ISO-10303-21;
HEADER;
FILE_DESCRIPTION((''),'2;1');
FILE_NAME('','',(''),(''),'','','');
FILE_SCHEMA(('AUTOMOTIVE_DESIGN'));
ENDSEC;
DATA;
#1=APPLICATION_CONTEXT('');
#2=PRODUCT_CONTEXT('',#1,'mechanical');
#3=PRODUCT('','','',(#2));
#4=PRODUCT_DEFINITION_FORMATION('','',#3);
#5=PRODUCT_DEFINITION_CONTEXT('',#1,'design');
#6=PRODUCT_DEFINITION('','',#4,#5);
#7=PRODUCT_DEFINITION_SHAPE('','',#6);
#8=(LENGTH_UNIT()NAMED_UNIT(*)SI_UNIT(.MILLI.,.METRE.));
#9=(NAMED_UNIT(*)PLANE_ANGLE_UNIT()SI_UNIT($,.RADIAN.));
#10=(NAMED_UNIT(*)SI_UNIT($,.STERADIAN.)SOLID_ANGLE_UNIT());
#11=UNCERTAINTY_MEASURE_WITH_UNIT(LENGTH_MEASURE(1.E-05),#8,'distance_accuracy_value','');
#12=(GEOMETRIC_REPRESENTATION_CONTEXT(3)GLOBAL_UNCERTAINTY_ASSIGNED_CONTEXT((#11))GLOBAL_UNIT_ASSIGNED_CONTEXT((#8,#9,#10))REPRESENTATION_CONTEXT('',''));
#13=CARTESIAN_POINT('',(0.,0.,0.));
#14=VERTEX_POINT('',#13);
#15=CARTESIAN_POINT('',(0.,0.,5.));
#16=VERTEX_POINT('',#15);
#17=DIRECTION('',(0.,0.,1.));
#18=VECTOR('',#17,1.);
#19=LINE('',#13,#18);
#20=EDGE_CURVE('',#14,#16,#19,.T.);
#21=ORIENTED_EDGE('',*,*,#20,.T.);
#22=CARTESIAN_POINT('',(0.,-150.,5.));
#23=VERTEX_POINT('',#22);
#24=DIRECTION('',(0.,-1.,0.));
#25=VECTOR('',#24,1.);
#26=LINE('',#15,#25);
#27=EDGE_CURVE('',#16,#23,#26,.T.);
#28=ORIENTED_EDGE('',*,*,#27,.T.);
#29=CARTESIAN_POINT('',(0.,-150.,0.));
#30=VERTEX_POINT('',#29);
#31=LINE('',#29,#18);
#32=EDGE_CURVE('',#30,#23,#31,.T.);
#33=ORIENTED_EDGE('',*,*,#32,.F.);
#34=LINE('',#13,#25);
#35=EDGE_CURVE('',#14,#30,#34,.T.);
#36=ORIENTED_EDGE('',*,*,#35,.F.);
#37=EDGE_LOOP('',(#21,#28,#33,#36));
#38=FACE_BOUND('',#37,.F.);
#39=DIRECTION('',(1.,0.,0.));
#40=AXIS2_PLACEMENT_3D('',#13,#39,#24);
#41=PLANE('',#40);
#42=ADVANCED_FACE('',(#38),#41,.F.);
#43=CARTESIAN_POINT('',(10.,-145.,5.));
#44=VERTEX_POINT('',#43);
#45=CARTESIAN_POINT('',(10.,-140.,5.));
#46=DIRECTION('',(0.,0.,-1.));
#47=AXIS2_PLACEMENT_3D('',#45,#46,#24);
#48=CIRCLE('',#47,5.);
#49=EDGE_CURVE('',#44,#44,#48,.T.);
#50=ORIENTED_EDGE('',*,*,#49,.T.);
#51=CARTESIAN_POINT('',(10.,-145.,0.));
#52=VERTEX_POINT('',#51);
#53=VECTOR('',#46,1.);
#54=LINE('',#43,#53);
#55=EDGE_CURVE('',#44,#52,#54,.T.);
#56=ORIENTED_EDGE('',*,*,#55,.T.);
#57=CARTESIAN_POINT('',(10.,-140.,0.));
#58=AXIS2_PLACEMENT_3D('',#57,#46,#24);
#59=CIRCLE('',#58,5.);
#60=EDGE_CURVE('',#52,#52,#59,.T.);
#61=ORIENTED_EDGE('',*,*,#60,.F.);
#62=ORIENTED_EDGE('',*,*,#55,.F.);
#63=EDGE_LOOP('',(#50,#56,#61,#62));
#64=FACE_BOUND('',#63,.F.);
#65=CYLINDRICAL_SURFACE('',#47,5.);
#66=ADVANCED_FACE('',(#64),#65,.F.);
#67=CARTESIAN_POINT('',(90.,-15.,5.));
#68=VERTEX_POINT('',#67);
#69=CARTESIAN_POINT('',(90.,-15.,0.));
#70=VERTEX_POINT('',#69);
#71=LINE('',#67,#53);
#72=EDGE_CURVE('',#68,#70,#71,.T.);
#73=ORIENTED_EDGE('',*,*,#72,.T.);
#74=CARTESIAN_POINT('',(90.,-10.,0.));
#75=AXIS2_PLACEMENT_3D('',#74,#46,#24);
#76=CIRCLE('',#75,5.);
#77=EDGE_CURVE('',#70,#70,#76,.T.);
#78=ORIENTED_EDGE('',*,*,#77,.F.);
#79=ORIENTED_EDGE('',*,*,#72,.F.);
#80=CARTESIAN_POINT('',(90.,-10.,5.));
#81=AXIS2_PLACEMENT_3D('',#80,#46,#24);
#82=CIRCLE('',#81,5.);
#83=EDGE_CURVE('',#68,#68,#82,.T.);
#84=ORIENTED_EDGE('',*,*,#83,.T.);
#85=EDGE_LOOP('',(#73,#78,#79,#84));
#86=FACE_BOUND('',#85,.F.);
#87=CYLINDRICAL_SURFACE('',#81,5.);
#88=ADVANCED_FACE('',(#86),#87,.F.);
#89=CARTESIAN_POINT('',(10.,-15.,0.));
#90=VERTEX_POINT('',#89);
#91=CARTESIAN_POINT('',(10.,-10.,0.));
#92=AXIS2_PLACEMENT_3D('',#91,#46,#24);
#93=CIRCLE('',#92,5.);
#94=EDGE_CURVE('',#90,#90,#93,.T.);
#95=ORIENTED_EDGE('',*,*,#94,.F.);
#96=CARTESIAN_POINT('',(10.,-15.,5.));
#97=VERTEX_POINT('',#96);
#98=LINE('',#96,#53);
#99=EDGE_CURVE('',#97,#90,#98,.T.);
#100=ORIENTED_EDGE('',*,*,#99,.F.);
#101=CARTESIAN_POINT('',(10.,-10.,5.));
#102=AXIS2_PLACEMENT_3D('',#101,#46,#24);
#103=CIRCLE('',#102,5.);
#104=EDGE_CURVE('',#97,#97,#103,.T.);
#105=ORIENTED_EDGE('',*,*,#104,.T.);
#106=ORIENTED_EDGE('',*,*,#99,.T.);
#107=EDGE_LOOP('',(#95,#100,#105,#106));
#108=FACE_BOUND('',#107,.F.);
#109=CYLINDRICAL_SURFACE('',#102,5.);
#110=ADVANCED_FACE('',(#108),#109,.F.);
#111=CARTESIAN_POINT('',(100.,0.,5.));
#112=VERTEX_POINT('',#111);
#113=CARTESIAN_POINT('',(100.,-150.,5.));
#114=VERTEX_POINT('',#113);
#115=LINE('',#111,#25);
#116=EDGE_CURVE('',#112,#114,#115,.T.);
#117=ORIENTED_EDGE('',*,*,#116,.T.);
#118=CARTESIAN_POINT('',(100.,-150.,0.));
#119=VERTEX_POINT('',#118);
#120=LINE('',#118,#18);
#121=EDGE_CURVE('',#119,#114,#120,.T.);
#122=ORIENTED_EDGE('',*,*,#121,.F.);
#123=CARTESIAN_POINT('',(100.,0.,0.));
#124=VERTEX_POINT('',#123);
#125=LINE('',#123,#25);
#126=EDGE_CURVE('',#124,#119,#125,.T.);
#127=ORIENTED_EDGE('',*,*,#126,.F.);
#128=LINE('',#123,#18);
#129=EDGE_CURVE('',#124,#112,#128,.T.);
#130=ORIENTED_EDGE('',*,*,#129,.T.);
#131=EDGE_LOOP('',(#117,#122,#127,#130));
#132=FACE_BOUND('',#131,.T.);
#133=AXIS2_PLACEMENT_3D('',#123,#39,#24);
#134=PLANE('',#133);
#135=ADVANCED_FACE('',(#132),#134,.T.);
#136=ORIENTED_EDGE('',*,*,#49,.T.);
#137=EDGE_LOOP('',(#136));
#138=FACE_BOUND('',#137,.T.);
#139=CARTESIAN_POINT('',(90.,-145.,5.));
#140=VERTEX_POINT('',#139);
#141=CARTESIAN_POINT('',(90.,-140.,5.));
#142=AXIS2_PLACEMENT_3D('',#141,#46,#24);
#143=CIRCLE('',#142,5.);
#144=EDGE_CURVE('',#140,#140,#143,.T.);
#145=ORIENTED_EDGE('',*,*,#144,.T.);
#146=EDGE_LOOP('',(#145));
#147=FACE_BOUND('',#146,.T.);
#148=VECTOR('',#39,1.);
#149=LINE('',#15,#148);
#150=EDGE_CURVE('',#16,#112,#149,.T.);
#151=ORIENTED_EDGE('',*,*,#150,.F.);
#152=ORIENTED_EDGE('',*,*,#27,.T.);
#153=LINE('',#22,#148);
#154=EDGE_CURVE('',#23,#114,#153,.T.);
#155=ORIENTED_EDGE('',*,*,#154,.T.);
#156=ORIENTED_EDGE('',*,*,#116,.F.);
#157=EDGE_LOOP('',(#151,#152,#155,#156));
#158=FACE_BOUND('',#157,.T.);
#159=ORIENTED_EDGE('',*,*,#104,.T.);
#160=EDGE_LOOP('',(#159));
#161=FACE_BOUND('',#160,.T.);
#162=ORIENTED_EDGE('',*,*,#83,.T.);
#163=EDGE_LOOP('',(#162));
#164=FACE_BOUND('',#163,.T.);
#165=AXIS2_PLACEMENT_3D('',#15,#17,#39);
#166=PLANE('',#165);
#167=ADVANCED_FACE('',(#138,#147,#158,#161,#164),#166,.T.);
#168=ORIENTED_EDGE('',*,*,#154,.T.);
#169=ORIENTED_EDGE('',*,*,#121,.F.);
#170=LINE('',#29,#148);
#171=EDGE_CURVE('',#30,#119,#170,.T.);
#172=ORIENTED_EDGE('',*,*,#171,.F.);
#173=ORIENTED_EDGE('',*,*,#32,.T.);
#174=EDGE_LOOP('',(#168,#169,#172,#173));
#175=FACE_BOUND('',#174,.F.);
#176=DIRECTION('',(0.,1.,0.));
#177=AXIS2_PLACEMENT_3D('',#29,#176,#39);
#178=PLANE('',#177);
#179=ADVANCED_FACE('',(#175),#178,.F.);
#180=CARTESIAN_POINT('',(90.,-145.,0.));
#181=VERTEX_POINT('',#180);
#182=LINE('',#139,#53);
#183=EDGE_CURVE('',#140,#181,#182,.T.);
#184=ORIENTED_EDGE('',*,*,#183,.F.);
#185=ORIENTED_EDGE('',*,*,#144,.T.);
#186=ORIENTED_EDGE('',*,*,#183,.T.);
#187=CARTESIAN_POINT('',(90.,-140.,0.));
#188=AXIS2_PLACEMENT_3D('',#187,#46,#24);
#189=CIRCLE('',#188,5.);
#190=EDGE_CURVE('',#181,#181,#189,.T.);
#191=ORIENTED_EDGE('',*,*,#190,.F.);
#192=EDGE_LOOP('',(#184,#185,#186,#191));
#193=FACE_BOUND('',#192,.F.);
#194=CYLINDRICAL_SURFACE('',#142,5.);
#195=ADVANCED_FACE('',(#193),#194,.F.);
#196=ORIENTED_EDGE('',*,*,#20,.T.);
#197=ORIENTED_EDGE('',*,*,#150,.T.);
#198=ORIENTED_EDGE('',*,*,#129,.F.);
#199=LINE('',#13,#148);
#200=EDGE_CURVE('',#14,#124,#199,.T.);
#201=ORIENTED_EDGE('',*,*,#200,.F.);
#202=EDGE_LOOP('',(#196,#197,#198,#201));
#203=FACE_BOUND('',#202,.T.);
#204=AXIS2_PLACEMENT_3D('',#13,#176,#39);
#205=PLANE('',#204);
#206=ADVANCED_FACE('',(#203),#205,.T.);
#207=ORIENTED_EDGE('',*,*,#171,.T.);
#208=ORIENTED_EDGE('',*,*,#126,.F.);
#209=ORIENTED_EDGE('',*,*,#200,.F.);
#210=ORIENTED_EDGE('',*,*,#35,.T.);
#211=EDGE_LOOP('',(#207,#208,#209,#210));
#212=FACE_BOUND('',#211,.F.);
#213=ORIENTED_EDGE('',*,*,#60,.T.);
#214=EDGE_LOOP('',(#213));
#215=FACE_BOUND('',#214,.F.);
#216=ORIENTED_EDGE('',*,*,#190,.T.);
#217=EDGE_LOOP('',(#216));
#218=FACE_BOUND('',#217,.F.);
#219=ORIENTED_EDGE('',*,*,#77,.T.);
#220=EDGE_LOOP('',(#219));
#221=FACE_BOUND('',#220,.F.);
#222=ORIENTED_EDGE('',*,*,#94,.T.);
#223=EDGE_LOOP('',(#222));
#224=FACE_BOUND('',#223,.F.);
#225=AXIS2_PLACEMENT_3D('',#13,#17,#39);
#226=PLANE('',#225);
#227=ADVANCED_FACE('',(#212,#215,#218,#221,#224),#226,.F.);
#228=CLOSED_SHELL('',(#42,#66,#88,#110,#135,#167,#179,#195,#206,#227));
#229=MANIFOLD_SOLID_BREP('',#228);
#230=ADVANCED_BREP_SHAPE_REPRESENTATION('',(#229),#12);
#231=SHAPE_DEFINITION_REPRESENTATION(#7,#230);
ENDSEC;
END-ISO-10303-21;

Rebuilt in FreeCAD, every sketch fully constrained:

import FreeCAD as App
import Part
import Sketcher
from FreeCAD import Vector
Q = App.Units.Quantity


def add_polygon(sketch, points):
    """Adds a closed chain of lines whose ends are joined by coincident constraints."""
    first, n = sketch.GeometryCount, len(points)
    for a, b in zip(points, points[1:] + points[:1]):
        sketch.addGeometry(Part.LineSegment(App.Vector(*a, 0), App.Vector(*b, 0)), False)
    for i in range(n):
        sketch.addConstraint(Sketcher.Constraint("Coincident", first + i, 2, first + (i + 1) % n, 1))

doc = App.newDocument("Part")
params = doc.addObject("Spreadsheet::Sheet", "Params")
for row, (alias, value) in enumerate([
    ("sketch1_width", "100 mm"),
    ("sketch1_height", "150 mm"),
    ("pad1_length", "5 mm"),
    ("sketch2_diameter", "10 mm"),
    ("hole_diameter", "10 mm"),
    ("hole_depth", "5 mm"),
    ("sketch3_diameter", "10 mm"),
    ("hole2_diameter", "10 mm"),
    ("hole2_depth", "5 mm"),
    ("sketch4_diameter", "10 mm"),
    ("hole3_diameter", "10 mm"),
    ("hole3_depth", "5 mm"),
    ("sketch5_diameter", "10 mm"),
    ("hole4_diameter", "10 mm"),
    ("hole4_depth", "5 mm"),
], start=1):
    params.set(f"A{row}", alias)
    params.set(f"B{row}", "=" + value)
    params.setAlias(f"B{row}", alias)

body = doc.addObject("PartDesign::Body", "Body")

# Sketch on XY plane
sketch1 = doc.addObject("Sketcher::SketchObject", "Sketch")
body.addObject(sketch1)
sketch1.AttachmentSupport = (doc.XY_Plane, [""])
sketch1.MapMode = "FlatFace"
add_polygon(sketch1, [(100, 0), (0, 0), (0, -150), (100, -150)])  # lines 0-3
sketch1.addConstraint(Sketcher.Constraint("Horizontal", 0))
sketch1.addConstraint(Sketcher.Constraint("Vertical", 1))
sketch1.addConstraint(Sketcher.Constraint("Horizontal", 2))
sketch1.addConstraint(Sketcher.Constraint("Vertical", 3))
sketch1.addConstraint(Sketcher.Constraint("Coincident", 0, 2, -1, 1))
sketch1.addConstraint(Sketcher.Constraint("DistanceX", 0, 2, 0, 1, Q("100 mm")))
sketch1.addConstraint(Sketcher.Constraint("DistanceY", 1, 2, 1, 1, Q("150 mm")))
sketch1.setExpression("Constraints[9]", "Params.sketch1_width")
sketch1.setExpression("Constraints[10]", "Params.sketch1_height")
pad1 = doc.addObject("PartDesign::Pad", "Pad")
body.addObject(pad1)
pad1.Profile = sketch1
pad1.setExpression("Length", "Params.pad1_length")

# Sketch on XY plane
sketch2 = doc.addObject("Sketcher::SketchObject", "Sketch001")
body.addObject(sketch2)
sketch2.AttachmentSupport = (doc.XY_Plane, [""])
sketch2.MapMode = "FlatFace"
sketch2.AttachmentOffset = App.Placement(Vector(0, 0, 5), App.Rotation())
sketch2.addGeometry(Part.Circle(Vector(10, -10, 0), Vector(0, 0, 1), 5), False)
sketch2.addConstraint(Sketcher.Constraint("Diameter", 0, Q("10 mm")))
sketch2.addConstraint(Sketcher.Constraint("DistanceX", -1, 1, 0, 3, Q("10 mm")))
sketch2.addConstraint(Sketcher.Constraint("DistanceY", 0, 3, -1, 1, Q("10 mm")))
sketch2.setExpression("Constraints[0]", "Params.sketch2_diameter")
doc.recompute()
hole = doc.addObject("PartDesign::Hole", "Hole")
body.addObject(hole)
hole.Profile = sketch2
hole.ThreadType = "None"
hole.setExpression("Diameter", "Params.hole_diameter")
hole.DepthType = "Dimension"
hole.setExpression("Depth", "Params.hole_depth")
hole.DrillPoint = "Flat"

# Sketch on XY plane
sketch3 = doc.addObject("Sketcher::SketchObject", "Sketch002")
body.addObject(sketch3)
sketch3.AttachmentSupport = (doc.XY_Plane, [""])
sketch3.MapMode = "FlatFace"
sketch3.AttachmentOffset = App.Placement(Vector(0, 0, 5), App.Rotation())
sketch3.addGeometry(Part.Circle(Vector(90, -10, 0), Vector(0, 0, 1), 5), False)
sketch3.addConstraint(Sketcher.Constraint("Diameter", 0, Q("10 mm")))
sketch3.addConstraint(Sketcher.Constraint("DistanceX", -1, 1, 0, 3, Q("90 mm")))
sketch3.addConstraint(Sketcher.Constraint("DistanceY", 0, 3, -1, 1, Q("10 mm")))
sketch3.setExpression("Constraints[0]", "Params.sketch3_diameter")
doc.recompute()
hole2 = doc.addObject("PartDesign::Hole", "Hole001")
body.addObject(hole2)
hole2.Profile = sketch3
hole2.ThreadType = "None"
hole2.setExpression("Diameter", "Params.hole2_diameter")
hole2.DepthType = "Dimension"
hole2.setExpression("Depth", "Params.hole2_depth")
hole2.DrillPoint = "Flat"

# Sketch on XY plane
sketch4 = doc.addObject("Sketcher::SketchObject", "Sketch003")
body.addObject(sketch4)
sketch4.AttachmentSupport = (doc.XY_Plane, [""])
sketch4.MapMode = "FlatFace"
sketch4.AttachmentOffset = App.Placement(Vector(0, 0, 5), App.Rotation())
sketch4.addGeometry(Part.Circle(Vector(10, -140, 0), Vector(0, 0, 1), 5), False)
sketch4.addConstraint(Sketcher.Constraint("Diameter", 0, Q("10 mm")))
sketch4.addConstraint(Sketcher.Constraint("DistanceX", -1, 1, 0, 3, Q("10 mm")))
sketch4.addConstraint(Sketcher.Constraint("DistanceY", 0, 3, -1, 1, Q("140 mm")))
sketch4.setExpression("Constraints[0]", "Params.sketch4_diameter")
doc.recompute()
hole3 = doc.addObject("PartDesign::Hole", "Hole002")
body.addObject(hole3)
hole3.Profile = sketch4
hole3.ThreadType = "None"
hole3.setExpression("Diameter", "Params.hole3_diameter")
hole3.DepthType = "Dimension"
hole3.setExpression("Depth", "Params.hole3_depth")
hole3.DrillPoint = "Flat"

# Sketch on XY plane
sketch5 = doc.addObject("Sketcher::SketchObject", "Sketch004")
body.addObject(sketch5)
sketch5.AttachmentSupport = (doc.XY_Plane, [""])
sketch5.MapMode = "FlatFace"
sketch5.AttachmentOffset = App.Placement(Vector(0, 0, 5), App.Rotation())
sketch5.addGeometry(Part.Circle(Vector(90, -140, 0), Vector(0, 0, 1), 5), False)
sketch5.addConstraint(Sketcher.Constraint("Diameter", 0, Q("10 mm")))
sketch5.addConstraint(Sketcher.Constraint("DistanceX", -1, 1, 0, 3, Q("90 mm")))
sketch5.addConstraint(Sketcher.Constraint("DistanceY", 0, 3, -1, 1, Q("140 mm")))
sketch5.setExpression("Constraints[0]", "Params.sketch5_diameter")
doc.recompute()
hole4 = doc.addObject("PartDesign::Hole", "Hole003")
body.addObject(hole4)
hole4.Profile = sketch5
hole4.ThreadType = "None"
hole4.setExpression("Diameter", "Params.hole4_diameter")
hole4.DepthType = "Dimension"
hole4.setExpression("Depth", "Params.hole4_depth")
hole4.DrillPoint = "Flat"

doc.recompute()
